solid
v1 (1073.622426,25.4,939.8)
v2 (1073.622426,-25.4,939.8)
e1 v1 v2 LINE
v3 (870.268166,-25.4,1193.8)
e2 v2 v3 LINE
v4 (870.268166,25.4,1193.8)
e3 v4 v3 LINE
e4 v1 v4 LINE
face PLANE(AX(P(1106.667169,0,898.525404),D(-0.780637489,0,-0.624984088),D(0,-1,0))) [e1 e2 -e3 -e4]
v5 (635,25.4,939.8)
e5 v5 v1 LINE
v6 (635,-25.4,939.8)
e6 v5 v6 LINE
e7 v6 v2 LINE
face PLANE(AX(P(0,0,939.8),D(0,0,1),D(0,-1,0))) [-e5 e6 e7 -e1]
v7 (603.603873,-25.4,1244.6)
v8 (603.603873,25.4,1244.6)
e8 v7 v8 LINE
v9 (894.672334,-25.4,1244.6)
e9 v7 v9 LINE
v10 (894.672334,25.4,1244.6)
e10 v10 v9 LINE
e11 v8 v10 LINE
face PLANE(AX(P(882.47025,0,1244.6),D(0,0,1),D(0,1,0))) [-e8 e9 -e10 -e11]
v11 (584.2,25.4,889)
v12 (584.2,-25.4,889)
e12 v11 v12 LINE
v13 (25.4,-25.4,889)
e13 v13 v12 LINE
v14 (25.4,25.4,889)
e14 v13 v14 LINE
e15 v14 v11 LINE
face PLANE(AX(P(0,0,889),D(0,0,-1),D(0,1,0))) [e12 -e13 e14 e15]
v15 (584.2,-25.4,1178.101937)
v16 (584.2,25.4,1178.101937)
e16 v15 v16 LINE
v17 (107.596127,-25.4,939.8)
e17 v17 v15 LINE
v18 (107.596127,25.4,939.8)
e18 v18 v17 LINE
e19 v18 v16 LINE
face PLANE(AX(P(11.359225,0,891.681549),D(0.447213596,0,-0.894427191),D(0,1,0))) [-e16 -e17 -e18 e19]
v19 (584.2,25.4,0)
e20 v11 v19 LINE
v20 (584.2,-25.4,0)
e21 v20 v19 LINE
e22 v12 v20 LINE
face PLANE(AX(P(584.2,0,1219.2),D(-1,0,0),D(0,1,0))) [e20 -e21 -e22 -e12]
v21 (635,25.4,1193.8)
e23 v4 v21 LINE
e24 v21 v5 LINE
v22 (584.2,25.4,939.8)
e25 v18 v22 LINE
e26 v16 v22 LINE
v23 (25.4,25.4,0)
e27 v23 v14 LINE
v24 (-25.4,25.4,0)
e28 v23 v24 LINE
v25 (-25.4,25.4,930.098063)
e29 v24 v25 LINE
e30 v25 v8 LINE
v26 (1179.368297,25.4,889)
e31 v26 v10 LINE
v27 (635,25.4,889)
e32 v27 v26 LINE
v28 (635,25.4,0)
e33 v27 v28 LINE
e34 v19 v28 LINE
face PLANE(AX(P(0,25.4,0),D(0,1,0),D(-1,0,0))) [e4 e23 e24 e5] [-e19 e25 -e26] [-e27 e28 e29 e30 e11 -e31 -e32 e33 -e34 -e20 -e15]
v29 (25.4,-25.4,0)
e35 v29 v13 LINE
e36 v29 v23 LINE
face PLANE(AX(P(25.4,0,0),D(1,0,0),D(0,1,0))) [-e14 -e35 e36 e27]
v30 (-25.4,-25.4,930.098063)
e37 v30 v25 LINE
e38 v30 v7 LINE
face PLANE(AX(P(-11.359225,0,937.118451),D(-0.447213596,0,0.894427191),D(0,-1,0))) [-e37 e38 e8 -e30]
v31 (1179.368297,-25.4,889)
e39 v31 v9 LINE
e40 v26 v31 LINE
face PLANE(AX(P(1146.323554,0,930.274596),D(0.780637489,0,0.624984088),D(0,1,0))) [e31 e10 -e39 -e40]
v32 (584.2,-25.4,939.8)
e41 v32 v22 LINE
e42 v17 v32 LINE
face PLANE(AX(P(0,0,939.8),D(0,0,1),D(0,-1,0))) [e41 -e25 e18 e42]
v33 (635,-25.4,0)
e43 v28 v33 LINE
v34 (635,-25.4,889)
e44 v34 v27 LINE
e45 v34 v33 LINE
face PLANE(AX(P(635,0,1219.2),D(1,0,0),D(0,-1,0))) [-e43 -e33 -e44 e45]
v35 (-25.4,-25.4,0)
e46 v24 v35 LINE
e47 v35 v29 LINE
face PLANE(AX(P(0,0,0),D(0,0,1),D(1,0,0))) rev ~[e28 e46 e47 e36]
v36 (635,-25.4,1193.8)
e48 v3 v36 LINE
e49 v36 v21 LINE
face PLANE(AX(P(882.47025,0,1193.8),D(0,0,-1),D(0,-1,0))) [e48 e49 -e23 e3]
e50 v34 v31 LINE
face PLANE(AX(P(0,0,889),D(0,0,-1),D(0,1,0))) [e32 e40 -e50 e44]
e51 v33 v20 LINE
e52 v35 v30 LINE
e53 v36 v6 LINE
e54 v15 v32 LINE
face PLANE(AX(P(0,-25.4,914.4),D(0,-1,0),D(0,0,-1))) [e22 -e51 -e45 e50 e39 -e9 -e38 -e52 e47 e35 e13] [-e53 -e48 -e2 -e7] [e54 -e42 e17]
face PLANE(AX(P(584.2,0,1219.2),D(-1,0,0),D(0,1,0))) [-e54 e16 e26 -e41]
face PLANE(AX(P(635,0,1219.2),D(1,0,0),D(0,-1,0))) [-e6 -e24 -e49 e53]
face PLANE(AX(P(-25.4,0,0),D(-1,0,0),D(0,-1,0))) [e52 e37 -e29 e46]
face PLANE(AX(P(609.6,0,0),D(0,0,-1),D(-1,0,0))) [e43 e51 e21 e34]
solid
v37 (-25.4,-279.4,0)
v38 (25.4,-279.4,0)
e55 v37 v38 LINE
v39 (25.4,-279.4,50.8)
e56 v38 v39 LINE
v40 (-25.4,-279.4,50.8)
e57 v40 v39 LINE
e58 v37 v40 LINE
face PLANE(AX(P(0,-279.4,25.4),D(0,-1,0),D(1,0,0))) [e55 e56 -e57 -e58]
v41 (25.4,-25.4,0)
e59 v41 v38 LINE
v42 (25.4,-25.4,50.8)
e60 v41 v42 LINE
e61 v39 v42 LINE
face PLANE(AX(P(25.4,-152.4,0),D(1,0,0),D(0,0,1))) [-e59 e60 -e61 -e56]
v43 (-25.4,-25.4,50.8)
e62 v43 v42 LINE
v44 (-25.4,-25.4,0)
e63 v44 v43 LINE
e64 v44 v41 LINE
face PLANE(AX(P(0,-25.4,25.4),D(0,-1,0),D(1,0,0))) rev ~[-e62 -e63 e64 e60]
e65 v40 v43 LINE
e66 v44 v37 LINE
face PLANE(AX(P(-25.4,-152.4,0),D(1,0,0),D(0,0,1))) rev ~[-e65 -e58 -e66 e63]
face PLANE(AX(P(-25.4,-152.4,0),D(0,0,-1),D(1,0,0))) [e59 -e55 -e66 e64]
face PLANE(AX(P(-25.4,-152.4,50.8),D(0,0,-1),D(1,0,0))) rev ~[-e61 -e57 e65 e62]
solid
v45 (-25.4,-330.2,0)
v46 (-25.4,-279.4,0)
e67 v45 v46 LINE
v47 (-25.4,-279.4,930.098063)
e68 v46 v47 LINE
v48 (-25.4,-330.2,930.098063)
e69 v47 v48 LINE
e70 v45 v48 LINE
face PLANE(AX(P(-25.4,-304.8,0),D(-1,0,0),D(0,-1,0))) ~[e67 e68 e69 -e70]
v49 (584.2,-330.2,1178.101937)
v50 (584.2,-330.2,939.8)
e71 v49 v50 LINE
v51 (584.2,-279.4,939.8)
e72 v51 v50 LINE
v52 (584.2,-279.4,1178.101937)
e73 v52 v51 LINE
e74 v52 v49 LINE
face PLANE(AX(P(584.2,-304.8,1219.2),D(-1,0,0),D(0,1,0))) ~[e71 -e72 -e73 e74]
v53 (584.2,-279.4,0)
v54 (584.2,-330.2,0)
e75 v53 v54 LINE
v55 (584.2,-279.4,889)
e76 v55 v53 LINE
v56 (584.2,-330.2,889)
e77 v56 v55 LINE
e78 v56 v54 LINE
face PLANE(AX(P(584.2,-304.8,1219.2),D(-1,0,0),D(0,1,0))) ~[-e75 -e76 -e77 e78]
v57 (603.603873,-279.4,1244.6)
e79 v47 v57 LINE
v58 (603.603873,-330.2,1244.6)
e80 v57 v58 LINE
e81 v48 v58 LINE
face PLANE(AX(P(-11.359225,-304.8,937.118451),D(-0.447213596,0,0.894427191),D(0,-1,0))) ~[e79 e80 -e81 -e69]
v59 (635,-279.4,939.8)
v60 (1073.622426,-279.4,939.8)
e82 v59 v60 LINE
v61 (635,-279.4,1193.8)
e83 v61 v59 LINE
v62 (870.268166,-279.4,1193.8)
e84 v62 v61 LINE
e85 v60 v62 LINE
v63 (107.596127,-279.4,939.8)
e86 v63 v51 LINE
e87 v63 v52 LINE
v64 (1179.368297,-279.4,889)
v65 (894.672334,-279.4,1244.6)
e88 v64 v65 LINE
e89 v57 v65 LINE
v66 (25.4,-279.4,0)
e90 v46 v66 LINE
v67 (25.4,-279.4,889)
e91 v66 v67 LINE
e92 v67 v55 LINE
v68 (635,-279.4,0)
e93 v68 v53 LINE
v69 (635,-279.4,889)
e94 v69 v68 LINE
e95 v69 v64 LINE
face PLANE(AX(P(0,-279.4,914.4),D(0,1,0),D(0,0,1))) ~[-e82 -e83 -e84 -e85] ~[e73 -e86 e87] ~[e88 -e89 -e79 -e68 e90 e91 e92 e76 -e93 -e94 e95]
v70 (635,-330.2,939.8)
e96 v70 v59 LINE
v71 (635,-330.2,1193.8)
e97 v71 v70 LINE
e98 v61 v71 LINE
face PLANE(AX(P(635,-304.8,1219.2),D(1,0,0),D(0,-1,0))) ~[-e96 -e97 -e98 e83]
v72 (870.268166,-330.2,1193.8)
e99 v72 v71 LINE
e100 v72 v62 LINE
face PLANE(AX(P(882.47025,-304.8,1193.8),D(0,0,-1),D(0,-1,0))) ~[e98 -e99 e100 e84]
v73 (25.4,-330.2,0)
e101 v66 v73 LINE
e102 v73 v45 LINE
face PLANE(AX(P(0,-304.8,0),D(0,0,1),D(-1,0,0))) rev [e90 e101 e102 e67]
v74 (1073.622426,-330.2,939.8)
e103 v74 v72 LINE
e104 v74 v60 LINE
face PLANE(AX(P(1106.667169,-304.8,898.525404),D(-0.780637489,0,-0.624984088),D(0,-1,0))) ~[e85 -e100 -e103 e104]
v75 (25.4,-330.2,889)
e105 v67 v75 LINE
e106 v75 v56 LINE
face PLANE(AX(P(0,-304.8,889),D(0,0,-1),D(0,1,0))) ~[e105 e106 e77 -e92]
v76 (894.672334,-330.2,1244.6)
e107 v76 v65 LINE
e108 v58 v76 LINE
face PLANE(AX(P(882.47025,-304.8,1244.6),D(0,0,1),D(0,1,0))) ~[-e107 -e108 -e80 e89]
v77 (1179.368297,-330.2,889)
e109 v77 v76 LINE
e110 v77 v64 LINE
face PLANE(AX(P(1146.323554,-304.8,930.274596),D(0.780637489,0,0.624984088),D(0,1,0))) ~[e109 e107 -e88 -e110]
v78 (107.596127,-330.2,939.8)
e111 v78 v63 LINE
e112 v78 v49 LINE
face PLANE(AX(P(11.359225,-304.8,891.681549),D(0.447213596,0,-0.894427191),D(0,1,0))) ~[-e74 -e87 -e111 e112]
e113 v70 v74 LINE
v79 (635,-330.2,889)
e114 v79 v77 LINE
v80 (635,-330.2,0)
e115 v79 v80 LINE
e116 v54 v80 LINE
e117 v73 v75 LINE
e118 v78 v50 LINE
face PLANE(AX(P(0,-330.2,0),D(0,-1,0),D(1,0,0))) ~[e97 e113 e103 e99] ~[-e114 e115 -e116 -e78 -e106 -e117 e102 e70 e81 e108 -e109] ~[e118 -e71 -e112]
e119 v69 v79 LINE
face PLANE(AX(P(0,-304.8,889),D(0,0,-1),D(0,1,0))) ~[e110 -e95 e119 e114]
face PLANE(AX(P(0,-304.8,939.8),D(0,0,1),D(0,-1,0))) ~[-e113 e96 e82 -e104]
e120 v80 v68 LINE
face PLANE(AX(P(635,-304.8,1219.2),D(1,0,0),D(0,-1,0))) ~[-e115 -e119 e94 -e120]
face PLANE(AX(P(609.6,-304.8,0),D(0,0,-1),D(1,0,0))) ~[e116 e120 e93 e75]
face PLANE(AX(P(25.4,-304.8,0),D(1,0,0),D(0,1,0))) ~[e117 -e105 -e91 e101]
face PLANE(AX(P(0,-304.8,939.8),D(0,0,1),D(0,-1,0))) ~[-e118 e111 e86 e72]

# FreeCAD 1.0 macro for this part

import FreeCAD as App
import Part
import Sketcher
Q = App.Units.Quantity

doc = App.newDocument("Part")
params = doc.addObject("Spreadsheet::Sheet", "Params")
for row, (alias, value) in enumerate([
    ("sketch1_width", "2 in"),
    ("sketch2_height", "36 in"),
    ("sketch2_height2", "48 in"),
    ("sketch3_width", "2 in"),
    ("sketch6_width", "2 in"),
    ("pad1_length", "5 in"),
    ("pad1_length2", "5 in"),
], start=1):
    params.set(f"A{row}", alias)
    params.set(f"B{row}", "=" + value)
    params.setAlias(f"B{row}", alias)

body = doc.addObject("PartDesign::Body", "Body")

# Sketch on XY plane
sketch1 = doc.addObject("Sketcher::SketchObject", "Sketch")
body.addObject(sketch1)
sketch1.AttachmentSupport = (doc.XY_Plane, [""])
sketch1.MapMode = "FlatFace"
sketch1.addGeometry([
    Part.LineSegment(App.Vector(-25.4, 25.4, 0), App.Vector(-25.4, -25.4, 0)),
    Part.LineSegment(App.Vector(-25.4, -25.4, 0), App.Vector(25.4, -25.4, 0)),
    Part.LineSegment(App.Vector(25.4, -25.4, 0), App.Vector(25.4, 25.4, 0)),
    Part.LineSegment(App.Vector(25.4, 25.4, 0), App.Vector(-25.4, 25.4, 0)),
], False)
sketch1.addConstraint([
    Sketcher.Constraint("Coincident", 0, 2, 1, 1),
    Sketcher.Constraint("Coincident", 1, 2, 2, 1),
    Sketcher.Constraint("Coincident", 2, 2, 3, 1),
    Sketcher.Constraint("Coincident", 3, 2, 0, 1),
    Sketcher.Constraint("Vertical", 0),
    Sketcher.Constraint("Horizontal", 1),
    Sketcher.Constraint("Vertical", 2),
    Sketcher.Constraint("Horizontal", 3),
    Sketcher.Constraint("Symmetric", 0, 2, 2, 2, -1, 1),
    Sketcher.Constraint("Equal", 3, 0),
    Sketcher.Constraint("DistanceX", 1, 1, 1, 2, Q("2 in")),
])
sketch1.setExpression("Constraints[10]", "Params.sketch1_width")

# Sketch on XZ plane
sketch2 = doc.addObject("Sketcher::SketchObject", "Sketch001")
body.addObject(sketch2)
sketch2.AttachmentSupport = (doc.XZ_Plane, [""])
sketch2.MapMode = "FlatFace"
sketch2.addGeometry([
    Part.LineSegment(App.Vector(0, 0, 0), App.Vector(0, 914.4, 0)),
    Part.LineSegment(App.Vector(0, 914.4, 0), App.Vector(609.6, 1219.2, 0)),
    Part.LineSegment(App.Vector(609.6, 1219.2, 0), App.Vector(609.6, 0, 0)),
], False)
sketch2.addConstraint([
    Sketcher.Constraint("Coincident", 0, 2, 1, 1),
    Sketcher.Constraint("Coincident", 1, 2, 2, 1),
    Sketcher.Constraint("Vertical", 0),
    Sketcher.Constraint("Vertical", 2),
    Sketcher.Constraint("Coincident", 0, 1, -1, 1),
    Sketcher.Constraint("PointOnObject", 2, 2, -1),
    Sketcher.Constraint("DistanceY", 0, 1, 0, 2, Q("36 in")),
    Sketcher.Constraint("DistanceY", 2, 2, 2, 1, Q("48 in")),
    Sketcher.Constraint("DistanceX", -1, 1, 1, 2, Q("24 in")),
])
sketch2.setExpression("Constraints[6]", "Params.sketch2_height")
sketch2.setExpression("Constraints[7]", "Params.sketch2_height2")
doc.recompute()

additivepipe = doc.addObject("PartDesign::AdditivePipe", "AdditivePipe")
body.addObject(additivepipe)
additivepipe.Profile = sketch1
additivepipe.Spine = (sketch2, ["Edge1", "Edge2", "Edge3"])
additivepipe.Transition = "Right corner"

# Sketch on YZ plane
sketch3 = doc.addObject("Sketcher::SketchObject", "Sketch002")
body.addObject(sketch3)
sketch3.AttachmentSupport = (doc.YZ_Plane, [""])
sketch3.MapMode = "FlatFace"
sketch3.addGeometry([
    Part.LineSegment(App.Vector(-25.4, 939.8, 0), App.Vector(-25.4, 889, 0)),
    Part.LineSegment(App.Vector(-25.4, 889, 0), App.Vector(25.4, 889, 0)),
    Part.LineSegment(App.Vector(25.4, 889, 0), App.Vector(25.4, 939.8, 0)),
    Part.LineSegment(App.Vector(25.4, 939.8, 0), App.Vector(-25.4, 939.8, 0)),
], False)
sketch3.addConstraint([
    Sketcher.Constraint("Coincident", 0, 2, 1, 1),
    Sketcher.Constraint("Coincident", 1, 2, 2, 1),
    Sketcher.Constraint("Coincident", 2, 2, 3, 1),
    Sketcher.Constraint("Coincident", 3, 2, 0, 1),
    Sketcher.Constraint("Vertical", 0),
    Sketcher.Constraint("Horizontal", 1),
    Sketcher.Constraint("Vertical", 2),
    Sketcher.Constraint("Horizontal", 3),
    Sketcher.Constraint("Equal", 3, 0),
    Sketcher.Constraint("DistanceX", 1, 1, 1, 2, Q("2 in")),
    Sketcher.Constraint("DistanceX", 0, 2, -1, 1, Q("1 in")),
    Sketcher.Constraint("DistanceY", -1, 1, 0, 2, Q("35 in")),
])
sketch3.setExpression("Constraints[9]", "Params.sketch3_width")

# Sketch on XZ plane
sketch4 = doc.addObject("Sketcher::SketchObject", "Sketch003")
body.addObject(sketch4)
sketch4.AttachmentSupport = (doc.XZ_Plane, [""])
sketch4.MapMode = "FlatFace"
sketch4.addGeometry([
    Part.LineSegment(App.Vector(0, 914.4, 0), App.Vector(1126.495361, 914.4, 0)),
    Part.LineSegment(App.Vector(1126.495361, 914.4, 0), App.Vector(882.47025, 1219.2, 0)),
    Part.LineSegment(App.Vector(882.47025, 1219.2, 0), App.Vector(609.6, 1219.2, 0)),
], False)
sketch4.addConstraint([
    Sketcher.Constraint("Coincident", 0, 2, 1, 1),
    Sketcher.Constraint("Coincident", 1, 2, 2, 1),
    Sketcher.Constraint("Horizontal", 0),
    Sketcher.Constraint("Horizontal", 2),
    Sketcher.Constraint("PointOnObject", 0, 1, -2),
    Sketcher.Constraint("DistanceY", -1, 1, 0, 1, Q("36 in")),
    Sketcher.Constraint("DistanceY", -1, 1, 1, 2, Q("48 in")),
    Sketcher.Constraint("DistanceX", -1, 1, 2, 2, Q("24 in")),
    Sketcher.Constraint("DistanceX", 0, 1, 0, 2, Q("1126.495361 mm")),
    Sketcher.Constraint("DistanceX", 2, 2, 2, 1, Q("272.87025 mm")),
])
doc.recompute()

additivepipe2 = doc.addObject("PartDesign::AdditivePipe", "AdditivePipe001")
body.addObject(additivepipe2)
additivepipe2.Profile = sketch3
additivepipe2.Spine = (sketch4, ["Edge1", "Edge2", "Edge3"])
additivepipe2.Transition = "Right corner"

# Sketch on XZ plane
sketch5 = doc.addObject("Sketcher::SketchObject", "Sketch004")
body.addObject(sketch5)
sketch5.AttachmentSupport = (doc.XZ_Plane, [""])
sketch5.MapMode = "FlatFace"
sketch5.addGeometry([
    Part.LineSegment(App.Vector(603.603873, 1244.6, 0), App.Vector(635, 1244.6, 0)),
    Part.LineSegment(App.Vector(635, 1244.6, 0), App.Vector(635, 1260.298063, 0)),
    Part.LineSegment(App.Vector(635, 1260.298063, 0), App.Vector(603.603873, 1244.6, 0)),
], False)
sketch5.addConstraint([
    Sketcher.Constraint("Coincident", 0, 2, 1, 1),
    Sketcher.Constraint("Coincident", 1, 2, 2, 1),
    Sketcher.Constraint("Coincident", 2, 2, 0, 1),
    Sketcher.Constraint("Horizontal", 0),
    Sketcher.Constraint("Vertical", 1),
    Sketcher.Constraint("DistanceX", -1, 1, 0, 2, Q("25 in")),
    Sketcher.Constraint("DistanceY", -1, 1, 0, 2, Q("49 in")),
    Sketcher.Constraint("DistanceX", 0, 1, 0, 2, Q("31.396127 mm")),
    Sketcher.Constraint("DistanceY", 1, 1, 1, 2, Q("15.698063 mm")),
])
pocket1 = doc.addObject("PartDesign::Pocket", "Pocket")
body.addObject(pocket1)
pocket1.Profile = sketch5
pocket1.Type = "ThroughAll"
pocket1.Midplane = True
body2 = doc.addObject("PartDesign::Body", "Body001")
doc.recompute()

mirroring = doc.addObject("Part::Mirroring", "Mirroring")
mirroring.Source = body
mirroring.Base = App.Vector(0, -152.4, 0)
mirroring.Normal = App.Vector(0, -1, 0)
body2.BaseFeature = mirroring
doc.recompute()
body3 = doc.addObject("PartDesign::Body", "Body002")

# Sketch on XZ plane
sketch6 = doc.addObject("Sketcher::SketchObject", "Sketch005")
body3.addObject(sketch6)
sketch6.AttachmentSupport = (doc.getObject("XZ_Plane002"), [""])
sketch6.MapMode = "FlatFace"
sketch6.AttachmentOffset = App.Placement(App.Vector(0, 0, 6 * 25.4), App.Rotation())
sketch6.addGeometry([
    Part.LineSegment(App.Vector(-25.4, 50.8, 0), App.Vector(-25.4, 0, 0)),
    Part.LineSegment(App.Vector(-25.4, 0, 0), App.Vector(25.4, 0, 0)),
    Part.LineSegment(App.Vector(25.4, 0, 0), App.Vector(25.4, 50.8, 0)),
    Part.LineSegment(App.Vector(25.4, 50.8, 0), App.Vector(-25.4, 50.8, 0)),
], False)
sketch6.addConstraint([
    Sketcher.Constraint("Coincident", 0, 2, 1, 1),
    Sketcher.Constraint("Coincident", 1, 2, 2, 1),
    Sketcher.Constraint("Coincident", 2, 2, 3, 1),
    Sketcher.Constraint("Coincident", 3, 2, 0, 1),
    Sketcher.Constraint("Vertical", 0),
    Sketcher.Constraint("Horizontal", 1),
    Sketcher.Constraint("Vertical", 2),
    Sketcher.Constraint("Horizontal", 3),
    Sketcher.Constraint("Symmetric", 0, 2, 1, 2, -1, 1),
    Sketcher.Constraint("Equal", 3, 0),
    Sketcher.Constraint("DistanceX", 1, 1, 1, 2, Q("2 in")),
])
sketch6.setExpression("Constraints[10]", "Params.sketch6_width")
pad1 = doc.addObject("PartDesign::Pad", "Pad")
body3.addObject(pad1)
pad1.Profile = sketch6
pad1.Type = "TwoLengths"
pad1.setExpression("Length", "Params.pad1_length")
pad1.setExpression("Length2", "Params.pad1_length2")
mirroring.Visibility = False

doc.recompute()
